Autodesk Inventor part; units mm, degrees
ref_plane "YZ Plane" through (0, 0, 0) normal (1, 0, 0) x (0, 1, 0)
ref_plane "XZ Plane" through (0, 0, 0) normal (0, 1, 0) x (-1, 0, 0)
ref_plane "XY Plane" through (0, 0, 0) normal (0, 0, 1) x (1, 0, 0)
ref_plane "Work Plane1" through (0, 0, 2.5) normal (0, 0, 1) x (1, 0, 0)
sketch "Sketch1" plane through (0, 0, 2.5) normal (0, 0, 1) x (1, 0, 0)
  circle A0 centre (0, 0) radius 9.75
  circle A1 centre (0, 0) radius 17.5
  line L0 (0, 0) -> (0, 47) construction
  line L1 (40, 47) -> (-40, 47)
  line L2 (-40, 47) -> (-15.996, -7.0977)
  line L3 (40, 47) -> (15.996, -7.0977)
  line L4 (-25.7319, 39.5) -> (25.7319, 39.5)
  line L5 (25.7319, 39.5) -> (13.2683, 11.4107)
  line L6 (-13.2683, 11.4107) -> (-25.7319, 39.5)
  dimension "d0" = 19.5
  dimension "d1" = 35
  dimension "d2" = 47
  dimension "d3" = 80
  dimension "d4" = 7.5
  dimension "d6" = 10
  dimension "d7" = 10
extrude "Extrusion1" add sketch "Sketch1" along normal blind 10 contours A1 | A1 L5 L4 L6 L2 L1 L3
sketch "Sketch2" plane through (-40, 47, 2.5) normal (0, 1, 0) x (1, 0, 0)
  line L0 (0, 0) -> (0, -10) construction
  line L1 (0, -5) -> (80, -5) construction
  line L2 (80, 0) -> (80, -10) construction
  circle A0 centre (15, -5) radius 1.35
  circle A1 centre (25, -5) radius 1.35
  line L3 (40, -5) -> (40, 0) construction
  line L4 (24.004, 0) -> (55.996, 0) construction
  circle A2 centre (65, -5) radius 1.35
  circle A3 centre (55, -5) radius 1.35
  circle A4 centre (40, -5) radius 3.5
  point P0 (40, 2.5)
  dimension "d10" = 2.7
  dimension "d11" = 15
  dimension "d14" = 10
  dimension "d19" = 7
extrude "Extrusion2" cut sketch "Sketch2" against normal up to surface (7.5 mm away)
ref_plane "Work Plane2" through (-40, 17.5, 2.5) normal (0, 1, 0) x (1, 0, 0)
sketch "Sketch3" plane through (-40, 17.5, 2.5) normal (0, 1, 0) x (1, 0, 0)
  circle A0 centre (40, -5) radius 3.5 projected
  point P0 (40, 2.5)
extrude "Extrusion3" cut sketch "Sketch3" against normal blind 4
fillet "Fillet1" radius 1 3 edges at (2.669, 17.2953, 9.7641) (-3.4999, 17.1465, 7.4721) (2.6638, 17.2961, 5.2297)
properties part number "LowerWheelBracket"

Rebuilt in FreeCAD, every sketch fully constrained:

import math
import FreeCAD as App
import Part
import Sketcher
from FreeCAD import Vector


def edges_at(feature, points):
    """Names of the edges that pass closest to the given points."""
    edges = feature.Shape.Edges
    near = lambda p: min(range(len(edges)), key=lambda i: edges[i].distToShape(Part.Vertex(*p))[0])
    return sorted({f"Edge{near(p) + 1}" for p in points})

doc = App.newDocument("Part")
body = doc.addObject("PartDesign::Body", "Body")

# Sketch on XY plane
sketch1 = doc.addObject("Sketcher::SketchObject", "Sketch")
body.addObject(sketch1)
sketch1.AttachmentSupport = (doc.XY_Plane, [""])
sketch1.MapMode = "FlatFace"
sketch1.AttachmentOffset = App.Placement(Vector(0, 0, 2.5), App.Rotation())
sketch1.addGeometry(Part.ArcOfCircle(Part.Circle(Vector(0, 0, 0), Vector(0, 0, 1), 18), math.radians(-156), math.radians(-24)), False)
sketch1.addGeometry(Part.LineSegment(Vector(16, -7, 0), Vector(40, 47, 0)), False)
sketch1.addGeometry(Part.LineSegment(Vector(40, 47, 0), Vector(-40, 47, 0)), False)
sketch1.addGeometry(Part.LineSegment(Vector(-40, 47, 0), Vector(-16, -7, 0)), False)
sketch1.addGeometry(Part.ArcOfCircle(Part.Circle(Vector(0, 0, 0), Vector(0, 0, 1), 18), math.radians(41), math.radians(139)), False)
sketch1.addGeometry(Part.LineSegment(Vector(-13, 11, 0), Vector(-26, 40, 0)), False)
sketch1.addGeometry(Part.LineSegment(Vector(-26, 40, 0), Vector(26, 40, 0)), False)
sketch1.addGeometry(Part.LineSegment(Vector(26, 40, 0), Vector(13, 11, 0)), False)
sketch1.addGeometry(Part.Circle(Vector(0, 0, 0), Vector(0, 0, 1), 10), False)
sketch1.addConstraint(Sketcher.Constraint("Tangent", 0, 2, 1, 1))
sketch1.addConstraint(Sketcher.Constraint("Coincident", 1, 2, 2, 1))
sketch1.addConstraint(Sketcher.Constraint("Coincident", 2, 2, 3, 1))
sketch1.addConstraint(Sketcher.Constraint("Tangent", 3, 2, 0, 1))
sketch1.addConstraint(Sketcher.Constraint("Coincident", 4, 2, 5, 1))
sketch1.addConstraint(Sketcher.Constraint("Coincident", 5, 2, 6, 1))
sketch1.addConstraint(Sketcher.Constraint("Coincident", 6, 2, 7, 1))
sketch1.addConstraint(Sketcher.Constraint("Coincident", 7, 2, 4, 1))
sketch1.addConstraint(Sketcher.Constraint("Horizontal", 2))
sketch1.addConstraint(Sketcher.Constraint("Horizontal", 6))
sketch1.addConstraint(Sketcher.Constraint("Coincident", 0, 3, -1, 1))
sketch1.addConstraint(Sketcher.Constraint("Coincident", 4, 3, -1, 1))
sketch1.addConstraint(Sketcher.Constraint("Coincident", 8, 3, -1, 1))
sketch1.addConstraint(Sketcher.Constraint("Equal", 0, 4))
sketch1.addConstraint(Sketcher.Constraint("Parallel", 3, 5))
sketch1.addConstraint(Sketcher.Constraint("Parallel", 1, 7))
sketch1.addConstraint(Sketcher.Constraint("Horizontal", 0, 2, 3, 2))
sketch1.addConstraint(Sketcher.Constraint("Horizontal", 4, 2, 7, 2))
sketch1.addConstraint(Sketcher.Constraint("Diameter", 8, 19.5))
sketch1.addConstraint(Sketcher.Constraint("Radius", 0, 17.5))
sketch1.addConstraint(Sketcher.Constraint("DistanceX", 2, 2, 2, 1, 80.0))
sketch1.addConstraint(Sketcher.Constraint("DistanceY", -1, 1, 1, 2, 47.0))
sketch1.addConstraint(Sketcher.Constraint("DistanceY", 5, 2, 2, 2, 7.5))
sketch1.addConstraint(Sketcher.Constraint("DistanceX", 6, 1, 6, 2, 51.4638))
pad1 = doc.addObject("PartDesign::Pad", "Pad")
body.addObject(pad1)
pad1.Profile = sketch1
pad1.Length = 10

# Sketch on XZ plane
sketch2 = doc.addObject("Sketcher::SketchObject", "Sketch001")
body.addObject(sketch2)
sketch2.AttachmentSupport = (doc.XZ_Plane, [""])
sketch2.MapMode = "FlatFace"
sketch2.AttachmentOffset = App.Placement(Vector(0, 0, -47), App.Rotation())
sketch2.addGeometry(Part.Circle(Vector(-25, 7.5, 0), Vector(0, 0, 1), 1.4), False)
sketch2.addGeometry(Part.Circle(Vector(-15, 7.5, 0), Vector(0, 0, 1), 1.4), False)
sketch2.addGeometry(Part.Circle(Vector(25, 7.5, 0), Vector(0, 0, 1), 1.4), False)
sketch2.addGeometry(Part.Circle(Vector(15, 7.5, 0), Vector(0, 0, 1), 1.4), False)
sketch2.addGeometry(Part.Circle(Vector(0, 7.5, 0), Vector(0, 0, 1), 3.5), False)
sketch2.addConstraint(Sketcher.Constraint("Equal", 0, 1))
sketch2.addConstraint(Sketcher.Constraint("Equal", 1, 2))
sketch2.addConstraint(Sketcher.Constraint("Equal", 2, 3))
sketch2.addConstraint(Sketcher.Constraint("Symmetric", 0, 3, 2, 3, -2))
sketch2.addConstraint(Sketcher.Constraint("Symmetric", 1, 3, 3, 3, -2))
sketch2.addConstraint(Sketcher.Constraint("PointOnObject", 4, 3, -2))
sketch2.addConstraint(Sketcher.Constraint("Horizontal", 0, 3, 1, 3))
sketch2.addConstraint(Sketcher.Constraint("Horizontal", 3, 3, 4, 3))
sketch2.addConstraint(Sketcher.Constraint("Diameter", 4, 7.0))
sketch2.addConstraint(Sketcher.Constraint("Diameter", 0, 2.7))
sketch2.addConstraint(Sketcher.Constraint("DistanceX", 1, 3, -1, 1, 15.0))
sketch2.addConstraint(Sketcher.Constraint("DistanceX", 0, 3, 1, 3, 10.0))
sketch2.addConstraint(Sketcher.Constraint("DistanceY", -1, 1, 0, 3, 7.5))
pocket1 = doc.addObject("PartDesign::Pocket", "Pocket")
body.addObject(pocket1)
pocket1.Profile = sketch2
pocket1.Length = 7.5
pocket1.Reversed = True

# Sketch on XZ plane
sketch3 = doc.addObject("Sketcher::SketchObject", "Sketch002")
body.addObject(sketch3)
sketch3.AttachmentSupport = (doc.XZ_Plane, [""])
sketch3.MapMode = "FlatFace"
sketch3.AttachmentOffset = App.Placement(Vector(0, 0, -17.5), App.Rotation())
sketch3.addGeometry(Part.Circle(Vector(0, 7.5, 0), Vector(0, 0, 1), 3.5), False)
sketch3.addConstraint(Sketcher.Constraint("PointOnObject", 0, 3, -2))
sketch3.addConstraint(Sketcher.Constraint("Diameter", 0, 7.0))
sketch3.addConstraint(Sketcher.Constraint("DistanceY", -1, 1, 0, 3, 7.5))
pocket2 = doc.addObject("PartDesign::Pocket", "Pocket001")
body.addObject(pocket2)
pocket2.Profile = sketch3
pocket2.Length = 4
pocket2.Reversed = True
doc.recompute()

fillet = doc.addObject("PartDesign::Fillet", "Fillet")
body.addObject(fillet)
fillet.Base = (pocket2, edges_at(pocket2, [(2.669, 17.295, 9.764), (-3.5, 17.146, 7.472), (2.664, 17.296, 5.23)]))
fillet.Radius = 1

doc.recompute()
